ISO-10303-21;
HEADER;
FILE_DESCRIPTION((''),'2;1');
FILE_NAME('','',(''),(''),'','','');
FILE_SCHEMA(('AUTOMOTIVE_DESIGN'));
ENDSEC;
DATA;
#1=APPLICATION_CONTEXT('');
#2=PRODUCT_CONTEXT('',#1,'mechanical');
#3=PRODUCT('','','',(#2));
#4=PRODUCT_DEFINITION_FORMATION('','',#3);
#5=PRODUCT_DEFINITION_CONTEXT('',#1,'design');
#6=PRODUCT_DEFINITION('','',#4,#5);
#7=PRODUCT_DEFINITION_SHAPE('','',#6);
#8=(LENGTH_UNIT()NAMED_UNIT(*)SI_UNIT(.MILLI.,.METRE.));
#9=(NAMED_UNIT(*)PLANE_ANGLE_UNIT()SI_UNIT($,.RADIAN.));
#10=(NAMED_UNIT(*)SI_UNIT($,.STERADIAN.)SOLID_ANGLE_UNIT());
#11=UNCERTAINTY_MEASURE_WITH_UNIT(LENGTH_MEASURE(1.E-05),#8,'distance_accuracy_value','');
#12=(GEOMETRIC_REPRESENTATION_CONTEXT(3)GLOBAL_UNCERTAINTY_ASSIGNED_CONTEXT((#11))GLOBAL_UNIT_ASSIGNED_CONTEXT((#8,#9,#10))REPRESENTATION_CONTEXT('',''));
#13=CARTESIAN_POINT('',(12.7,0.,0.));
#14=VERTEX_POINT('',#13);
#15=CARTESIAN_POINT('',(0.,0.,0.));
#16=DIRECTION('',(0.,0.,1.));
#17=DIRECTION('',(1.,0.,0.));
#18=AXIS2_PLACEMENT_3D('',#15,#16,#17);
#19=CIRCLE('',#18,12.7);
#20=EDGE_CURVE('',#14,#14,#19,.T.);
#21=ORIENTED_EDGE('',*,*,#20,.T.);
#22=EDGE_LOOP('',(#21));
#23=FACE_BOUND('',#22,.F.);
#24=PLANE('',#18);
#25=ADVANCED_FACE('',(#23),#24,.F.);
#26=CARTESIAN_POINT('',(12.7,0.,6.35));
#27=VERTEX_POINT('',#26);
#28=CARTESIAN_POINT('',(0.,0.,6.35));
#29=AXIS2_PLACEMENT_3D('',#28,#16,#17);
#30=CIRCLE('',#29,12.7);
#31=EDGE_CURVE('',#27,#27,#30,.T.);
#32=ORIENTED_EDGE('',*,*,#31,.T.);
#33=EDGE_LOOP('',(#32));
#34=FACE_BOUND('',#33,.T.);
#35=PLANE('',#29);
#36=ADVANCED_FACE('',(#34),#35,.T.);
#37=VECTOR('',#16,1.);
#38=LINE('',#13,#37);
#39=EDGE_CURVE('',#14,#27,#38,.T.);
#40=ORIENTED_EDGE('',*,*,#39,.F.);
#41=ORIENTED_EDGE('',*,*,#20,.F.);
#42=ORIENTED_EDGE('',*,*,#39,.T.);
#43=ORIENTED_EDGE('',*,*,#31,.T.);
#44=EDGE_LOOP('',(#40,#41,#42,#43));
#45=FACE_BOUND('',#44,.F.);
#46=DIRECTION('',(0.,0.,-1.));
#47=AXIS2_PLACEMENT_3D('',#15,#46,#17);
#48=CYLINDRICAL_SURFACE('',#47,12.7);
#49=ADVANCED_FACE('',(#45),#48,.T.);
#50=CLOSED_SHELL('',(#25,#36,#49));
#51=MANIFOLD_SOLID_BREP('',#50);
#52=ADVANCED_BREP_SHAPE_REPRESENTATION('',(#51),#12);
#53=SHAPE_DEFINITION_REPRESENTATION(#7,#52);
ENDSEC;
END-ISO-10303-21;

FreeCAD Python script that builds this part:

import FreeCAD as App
import Part
import Sketcher

V = App.Vector
Q = App.Units.Quantity

doc = App.newDocument("Part")
body = doc.addObject("PartDesign::Body", "Body")

sketch1 = doc.addObject("Sketcher::SketchObject", "Sketch")
body.addObject(sketch1)
sketch1.AttachmentSupport = (doc.XY_Plane, [""])
sketch1.MapMode = "FlatFace"
sketch1.addGeometry(Part.Circle(V(0, 0, 0), V(0, 0, 1), 12.7), False)
sketch1.addConstraint(Sketcher.Constraint("Coincident", 0, 3, -1, 1))
sketch1.addConstraint(Sketcher.Constraint("Diameter", 0, Q("1 in")))
pad1 = doc.addObject("PartDesign::Pad", "Pad")
body.addObject(pad1)
pad1.Profile = sketch1
pad1.Length = Q("0.25 in")

doc.recompute()
